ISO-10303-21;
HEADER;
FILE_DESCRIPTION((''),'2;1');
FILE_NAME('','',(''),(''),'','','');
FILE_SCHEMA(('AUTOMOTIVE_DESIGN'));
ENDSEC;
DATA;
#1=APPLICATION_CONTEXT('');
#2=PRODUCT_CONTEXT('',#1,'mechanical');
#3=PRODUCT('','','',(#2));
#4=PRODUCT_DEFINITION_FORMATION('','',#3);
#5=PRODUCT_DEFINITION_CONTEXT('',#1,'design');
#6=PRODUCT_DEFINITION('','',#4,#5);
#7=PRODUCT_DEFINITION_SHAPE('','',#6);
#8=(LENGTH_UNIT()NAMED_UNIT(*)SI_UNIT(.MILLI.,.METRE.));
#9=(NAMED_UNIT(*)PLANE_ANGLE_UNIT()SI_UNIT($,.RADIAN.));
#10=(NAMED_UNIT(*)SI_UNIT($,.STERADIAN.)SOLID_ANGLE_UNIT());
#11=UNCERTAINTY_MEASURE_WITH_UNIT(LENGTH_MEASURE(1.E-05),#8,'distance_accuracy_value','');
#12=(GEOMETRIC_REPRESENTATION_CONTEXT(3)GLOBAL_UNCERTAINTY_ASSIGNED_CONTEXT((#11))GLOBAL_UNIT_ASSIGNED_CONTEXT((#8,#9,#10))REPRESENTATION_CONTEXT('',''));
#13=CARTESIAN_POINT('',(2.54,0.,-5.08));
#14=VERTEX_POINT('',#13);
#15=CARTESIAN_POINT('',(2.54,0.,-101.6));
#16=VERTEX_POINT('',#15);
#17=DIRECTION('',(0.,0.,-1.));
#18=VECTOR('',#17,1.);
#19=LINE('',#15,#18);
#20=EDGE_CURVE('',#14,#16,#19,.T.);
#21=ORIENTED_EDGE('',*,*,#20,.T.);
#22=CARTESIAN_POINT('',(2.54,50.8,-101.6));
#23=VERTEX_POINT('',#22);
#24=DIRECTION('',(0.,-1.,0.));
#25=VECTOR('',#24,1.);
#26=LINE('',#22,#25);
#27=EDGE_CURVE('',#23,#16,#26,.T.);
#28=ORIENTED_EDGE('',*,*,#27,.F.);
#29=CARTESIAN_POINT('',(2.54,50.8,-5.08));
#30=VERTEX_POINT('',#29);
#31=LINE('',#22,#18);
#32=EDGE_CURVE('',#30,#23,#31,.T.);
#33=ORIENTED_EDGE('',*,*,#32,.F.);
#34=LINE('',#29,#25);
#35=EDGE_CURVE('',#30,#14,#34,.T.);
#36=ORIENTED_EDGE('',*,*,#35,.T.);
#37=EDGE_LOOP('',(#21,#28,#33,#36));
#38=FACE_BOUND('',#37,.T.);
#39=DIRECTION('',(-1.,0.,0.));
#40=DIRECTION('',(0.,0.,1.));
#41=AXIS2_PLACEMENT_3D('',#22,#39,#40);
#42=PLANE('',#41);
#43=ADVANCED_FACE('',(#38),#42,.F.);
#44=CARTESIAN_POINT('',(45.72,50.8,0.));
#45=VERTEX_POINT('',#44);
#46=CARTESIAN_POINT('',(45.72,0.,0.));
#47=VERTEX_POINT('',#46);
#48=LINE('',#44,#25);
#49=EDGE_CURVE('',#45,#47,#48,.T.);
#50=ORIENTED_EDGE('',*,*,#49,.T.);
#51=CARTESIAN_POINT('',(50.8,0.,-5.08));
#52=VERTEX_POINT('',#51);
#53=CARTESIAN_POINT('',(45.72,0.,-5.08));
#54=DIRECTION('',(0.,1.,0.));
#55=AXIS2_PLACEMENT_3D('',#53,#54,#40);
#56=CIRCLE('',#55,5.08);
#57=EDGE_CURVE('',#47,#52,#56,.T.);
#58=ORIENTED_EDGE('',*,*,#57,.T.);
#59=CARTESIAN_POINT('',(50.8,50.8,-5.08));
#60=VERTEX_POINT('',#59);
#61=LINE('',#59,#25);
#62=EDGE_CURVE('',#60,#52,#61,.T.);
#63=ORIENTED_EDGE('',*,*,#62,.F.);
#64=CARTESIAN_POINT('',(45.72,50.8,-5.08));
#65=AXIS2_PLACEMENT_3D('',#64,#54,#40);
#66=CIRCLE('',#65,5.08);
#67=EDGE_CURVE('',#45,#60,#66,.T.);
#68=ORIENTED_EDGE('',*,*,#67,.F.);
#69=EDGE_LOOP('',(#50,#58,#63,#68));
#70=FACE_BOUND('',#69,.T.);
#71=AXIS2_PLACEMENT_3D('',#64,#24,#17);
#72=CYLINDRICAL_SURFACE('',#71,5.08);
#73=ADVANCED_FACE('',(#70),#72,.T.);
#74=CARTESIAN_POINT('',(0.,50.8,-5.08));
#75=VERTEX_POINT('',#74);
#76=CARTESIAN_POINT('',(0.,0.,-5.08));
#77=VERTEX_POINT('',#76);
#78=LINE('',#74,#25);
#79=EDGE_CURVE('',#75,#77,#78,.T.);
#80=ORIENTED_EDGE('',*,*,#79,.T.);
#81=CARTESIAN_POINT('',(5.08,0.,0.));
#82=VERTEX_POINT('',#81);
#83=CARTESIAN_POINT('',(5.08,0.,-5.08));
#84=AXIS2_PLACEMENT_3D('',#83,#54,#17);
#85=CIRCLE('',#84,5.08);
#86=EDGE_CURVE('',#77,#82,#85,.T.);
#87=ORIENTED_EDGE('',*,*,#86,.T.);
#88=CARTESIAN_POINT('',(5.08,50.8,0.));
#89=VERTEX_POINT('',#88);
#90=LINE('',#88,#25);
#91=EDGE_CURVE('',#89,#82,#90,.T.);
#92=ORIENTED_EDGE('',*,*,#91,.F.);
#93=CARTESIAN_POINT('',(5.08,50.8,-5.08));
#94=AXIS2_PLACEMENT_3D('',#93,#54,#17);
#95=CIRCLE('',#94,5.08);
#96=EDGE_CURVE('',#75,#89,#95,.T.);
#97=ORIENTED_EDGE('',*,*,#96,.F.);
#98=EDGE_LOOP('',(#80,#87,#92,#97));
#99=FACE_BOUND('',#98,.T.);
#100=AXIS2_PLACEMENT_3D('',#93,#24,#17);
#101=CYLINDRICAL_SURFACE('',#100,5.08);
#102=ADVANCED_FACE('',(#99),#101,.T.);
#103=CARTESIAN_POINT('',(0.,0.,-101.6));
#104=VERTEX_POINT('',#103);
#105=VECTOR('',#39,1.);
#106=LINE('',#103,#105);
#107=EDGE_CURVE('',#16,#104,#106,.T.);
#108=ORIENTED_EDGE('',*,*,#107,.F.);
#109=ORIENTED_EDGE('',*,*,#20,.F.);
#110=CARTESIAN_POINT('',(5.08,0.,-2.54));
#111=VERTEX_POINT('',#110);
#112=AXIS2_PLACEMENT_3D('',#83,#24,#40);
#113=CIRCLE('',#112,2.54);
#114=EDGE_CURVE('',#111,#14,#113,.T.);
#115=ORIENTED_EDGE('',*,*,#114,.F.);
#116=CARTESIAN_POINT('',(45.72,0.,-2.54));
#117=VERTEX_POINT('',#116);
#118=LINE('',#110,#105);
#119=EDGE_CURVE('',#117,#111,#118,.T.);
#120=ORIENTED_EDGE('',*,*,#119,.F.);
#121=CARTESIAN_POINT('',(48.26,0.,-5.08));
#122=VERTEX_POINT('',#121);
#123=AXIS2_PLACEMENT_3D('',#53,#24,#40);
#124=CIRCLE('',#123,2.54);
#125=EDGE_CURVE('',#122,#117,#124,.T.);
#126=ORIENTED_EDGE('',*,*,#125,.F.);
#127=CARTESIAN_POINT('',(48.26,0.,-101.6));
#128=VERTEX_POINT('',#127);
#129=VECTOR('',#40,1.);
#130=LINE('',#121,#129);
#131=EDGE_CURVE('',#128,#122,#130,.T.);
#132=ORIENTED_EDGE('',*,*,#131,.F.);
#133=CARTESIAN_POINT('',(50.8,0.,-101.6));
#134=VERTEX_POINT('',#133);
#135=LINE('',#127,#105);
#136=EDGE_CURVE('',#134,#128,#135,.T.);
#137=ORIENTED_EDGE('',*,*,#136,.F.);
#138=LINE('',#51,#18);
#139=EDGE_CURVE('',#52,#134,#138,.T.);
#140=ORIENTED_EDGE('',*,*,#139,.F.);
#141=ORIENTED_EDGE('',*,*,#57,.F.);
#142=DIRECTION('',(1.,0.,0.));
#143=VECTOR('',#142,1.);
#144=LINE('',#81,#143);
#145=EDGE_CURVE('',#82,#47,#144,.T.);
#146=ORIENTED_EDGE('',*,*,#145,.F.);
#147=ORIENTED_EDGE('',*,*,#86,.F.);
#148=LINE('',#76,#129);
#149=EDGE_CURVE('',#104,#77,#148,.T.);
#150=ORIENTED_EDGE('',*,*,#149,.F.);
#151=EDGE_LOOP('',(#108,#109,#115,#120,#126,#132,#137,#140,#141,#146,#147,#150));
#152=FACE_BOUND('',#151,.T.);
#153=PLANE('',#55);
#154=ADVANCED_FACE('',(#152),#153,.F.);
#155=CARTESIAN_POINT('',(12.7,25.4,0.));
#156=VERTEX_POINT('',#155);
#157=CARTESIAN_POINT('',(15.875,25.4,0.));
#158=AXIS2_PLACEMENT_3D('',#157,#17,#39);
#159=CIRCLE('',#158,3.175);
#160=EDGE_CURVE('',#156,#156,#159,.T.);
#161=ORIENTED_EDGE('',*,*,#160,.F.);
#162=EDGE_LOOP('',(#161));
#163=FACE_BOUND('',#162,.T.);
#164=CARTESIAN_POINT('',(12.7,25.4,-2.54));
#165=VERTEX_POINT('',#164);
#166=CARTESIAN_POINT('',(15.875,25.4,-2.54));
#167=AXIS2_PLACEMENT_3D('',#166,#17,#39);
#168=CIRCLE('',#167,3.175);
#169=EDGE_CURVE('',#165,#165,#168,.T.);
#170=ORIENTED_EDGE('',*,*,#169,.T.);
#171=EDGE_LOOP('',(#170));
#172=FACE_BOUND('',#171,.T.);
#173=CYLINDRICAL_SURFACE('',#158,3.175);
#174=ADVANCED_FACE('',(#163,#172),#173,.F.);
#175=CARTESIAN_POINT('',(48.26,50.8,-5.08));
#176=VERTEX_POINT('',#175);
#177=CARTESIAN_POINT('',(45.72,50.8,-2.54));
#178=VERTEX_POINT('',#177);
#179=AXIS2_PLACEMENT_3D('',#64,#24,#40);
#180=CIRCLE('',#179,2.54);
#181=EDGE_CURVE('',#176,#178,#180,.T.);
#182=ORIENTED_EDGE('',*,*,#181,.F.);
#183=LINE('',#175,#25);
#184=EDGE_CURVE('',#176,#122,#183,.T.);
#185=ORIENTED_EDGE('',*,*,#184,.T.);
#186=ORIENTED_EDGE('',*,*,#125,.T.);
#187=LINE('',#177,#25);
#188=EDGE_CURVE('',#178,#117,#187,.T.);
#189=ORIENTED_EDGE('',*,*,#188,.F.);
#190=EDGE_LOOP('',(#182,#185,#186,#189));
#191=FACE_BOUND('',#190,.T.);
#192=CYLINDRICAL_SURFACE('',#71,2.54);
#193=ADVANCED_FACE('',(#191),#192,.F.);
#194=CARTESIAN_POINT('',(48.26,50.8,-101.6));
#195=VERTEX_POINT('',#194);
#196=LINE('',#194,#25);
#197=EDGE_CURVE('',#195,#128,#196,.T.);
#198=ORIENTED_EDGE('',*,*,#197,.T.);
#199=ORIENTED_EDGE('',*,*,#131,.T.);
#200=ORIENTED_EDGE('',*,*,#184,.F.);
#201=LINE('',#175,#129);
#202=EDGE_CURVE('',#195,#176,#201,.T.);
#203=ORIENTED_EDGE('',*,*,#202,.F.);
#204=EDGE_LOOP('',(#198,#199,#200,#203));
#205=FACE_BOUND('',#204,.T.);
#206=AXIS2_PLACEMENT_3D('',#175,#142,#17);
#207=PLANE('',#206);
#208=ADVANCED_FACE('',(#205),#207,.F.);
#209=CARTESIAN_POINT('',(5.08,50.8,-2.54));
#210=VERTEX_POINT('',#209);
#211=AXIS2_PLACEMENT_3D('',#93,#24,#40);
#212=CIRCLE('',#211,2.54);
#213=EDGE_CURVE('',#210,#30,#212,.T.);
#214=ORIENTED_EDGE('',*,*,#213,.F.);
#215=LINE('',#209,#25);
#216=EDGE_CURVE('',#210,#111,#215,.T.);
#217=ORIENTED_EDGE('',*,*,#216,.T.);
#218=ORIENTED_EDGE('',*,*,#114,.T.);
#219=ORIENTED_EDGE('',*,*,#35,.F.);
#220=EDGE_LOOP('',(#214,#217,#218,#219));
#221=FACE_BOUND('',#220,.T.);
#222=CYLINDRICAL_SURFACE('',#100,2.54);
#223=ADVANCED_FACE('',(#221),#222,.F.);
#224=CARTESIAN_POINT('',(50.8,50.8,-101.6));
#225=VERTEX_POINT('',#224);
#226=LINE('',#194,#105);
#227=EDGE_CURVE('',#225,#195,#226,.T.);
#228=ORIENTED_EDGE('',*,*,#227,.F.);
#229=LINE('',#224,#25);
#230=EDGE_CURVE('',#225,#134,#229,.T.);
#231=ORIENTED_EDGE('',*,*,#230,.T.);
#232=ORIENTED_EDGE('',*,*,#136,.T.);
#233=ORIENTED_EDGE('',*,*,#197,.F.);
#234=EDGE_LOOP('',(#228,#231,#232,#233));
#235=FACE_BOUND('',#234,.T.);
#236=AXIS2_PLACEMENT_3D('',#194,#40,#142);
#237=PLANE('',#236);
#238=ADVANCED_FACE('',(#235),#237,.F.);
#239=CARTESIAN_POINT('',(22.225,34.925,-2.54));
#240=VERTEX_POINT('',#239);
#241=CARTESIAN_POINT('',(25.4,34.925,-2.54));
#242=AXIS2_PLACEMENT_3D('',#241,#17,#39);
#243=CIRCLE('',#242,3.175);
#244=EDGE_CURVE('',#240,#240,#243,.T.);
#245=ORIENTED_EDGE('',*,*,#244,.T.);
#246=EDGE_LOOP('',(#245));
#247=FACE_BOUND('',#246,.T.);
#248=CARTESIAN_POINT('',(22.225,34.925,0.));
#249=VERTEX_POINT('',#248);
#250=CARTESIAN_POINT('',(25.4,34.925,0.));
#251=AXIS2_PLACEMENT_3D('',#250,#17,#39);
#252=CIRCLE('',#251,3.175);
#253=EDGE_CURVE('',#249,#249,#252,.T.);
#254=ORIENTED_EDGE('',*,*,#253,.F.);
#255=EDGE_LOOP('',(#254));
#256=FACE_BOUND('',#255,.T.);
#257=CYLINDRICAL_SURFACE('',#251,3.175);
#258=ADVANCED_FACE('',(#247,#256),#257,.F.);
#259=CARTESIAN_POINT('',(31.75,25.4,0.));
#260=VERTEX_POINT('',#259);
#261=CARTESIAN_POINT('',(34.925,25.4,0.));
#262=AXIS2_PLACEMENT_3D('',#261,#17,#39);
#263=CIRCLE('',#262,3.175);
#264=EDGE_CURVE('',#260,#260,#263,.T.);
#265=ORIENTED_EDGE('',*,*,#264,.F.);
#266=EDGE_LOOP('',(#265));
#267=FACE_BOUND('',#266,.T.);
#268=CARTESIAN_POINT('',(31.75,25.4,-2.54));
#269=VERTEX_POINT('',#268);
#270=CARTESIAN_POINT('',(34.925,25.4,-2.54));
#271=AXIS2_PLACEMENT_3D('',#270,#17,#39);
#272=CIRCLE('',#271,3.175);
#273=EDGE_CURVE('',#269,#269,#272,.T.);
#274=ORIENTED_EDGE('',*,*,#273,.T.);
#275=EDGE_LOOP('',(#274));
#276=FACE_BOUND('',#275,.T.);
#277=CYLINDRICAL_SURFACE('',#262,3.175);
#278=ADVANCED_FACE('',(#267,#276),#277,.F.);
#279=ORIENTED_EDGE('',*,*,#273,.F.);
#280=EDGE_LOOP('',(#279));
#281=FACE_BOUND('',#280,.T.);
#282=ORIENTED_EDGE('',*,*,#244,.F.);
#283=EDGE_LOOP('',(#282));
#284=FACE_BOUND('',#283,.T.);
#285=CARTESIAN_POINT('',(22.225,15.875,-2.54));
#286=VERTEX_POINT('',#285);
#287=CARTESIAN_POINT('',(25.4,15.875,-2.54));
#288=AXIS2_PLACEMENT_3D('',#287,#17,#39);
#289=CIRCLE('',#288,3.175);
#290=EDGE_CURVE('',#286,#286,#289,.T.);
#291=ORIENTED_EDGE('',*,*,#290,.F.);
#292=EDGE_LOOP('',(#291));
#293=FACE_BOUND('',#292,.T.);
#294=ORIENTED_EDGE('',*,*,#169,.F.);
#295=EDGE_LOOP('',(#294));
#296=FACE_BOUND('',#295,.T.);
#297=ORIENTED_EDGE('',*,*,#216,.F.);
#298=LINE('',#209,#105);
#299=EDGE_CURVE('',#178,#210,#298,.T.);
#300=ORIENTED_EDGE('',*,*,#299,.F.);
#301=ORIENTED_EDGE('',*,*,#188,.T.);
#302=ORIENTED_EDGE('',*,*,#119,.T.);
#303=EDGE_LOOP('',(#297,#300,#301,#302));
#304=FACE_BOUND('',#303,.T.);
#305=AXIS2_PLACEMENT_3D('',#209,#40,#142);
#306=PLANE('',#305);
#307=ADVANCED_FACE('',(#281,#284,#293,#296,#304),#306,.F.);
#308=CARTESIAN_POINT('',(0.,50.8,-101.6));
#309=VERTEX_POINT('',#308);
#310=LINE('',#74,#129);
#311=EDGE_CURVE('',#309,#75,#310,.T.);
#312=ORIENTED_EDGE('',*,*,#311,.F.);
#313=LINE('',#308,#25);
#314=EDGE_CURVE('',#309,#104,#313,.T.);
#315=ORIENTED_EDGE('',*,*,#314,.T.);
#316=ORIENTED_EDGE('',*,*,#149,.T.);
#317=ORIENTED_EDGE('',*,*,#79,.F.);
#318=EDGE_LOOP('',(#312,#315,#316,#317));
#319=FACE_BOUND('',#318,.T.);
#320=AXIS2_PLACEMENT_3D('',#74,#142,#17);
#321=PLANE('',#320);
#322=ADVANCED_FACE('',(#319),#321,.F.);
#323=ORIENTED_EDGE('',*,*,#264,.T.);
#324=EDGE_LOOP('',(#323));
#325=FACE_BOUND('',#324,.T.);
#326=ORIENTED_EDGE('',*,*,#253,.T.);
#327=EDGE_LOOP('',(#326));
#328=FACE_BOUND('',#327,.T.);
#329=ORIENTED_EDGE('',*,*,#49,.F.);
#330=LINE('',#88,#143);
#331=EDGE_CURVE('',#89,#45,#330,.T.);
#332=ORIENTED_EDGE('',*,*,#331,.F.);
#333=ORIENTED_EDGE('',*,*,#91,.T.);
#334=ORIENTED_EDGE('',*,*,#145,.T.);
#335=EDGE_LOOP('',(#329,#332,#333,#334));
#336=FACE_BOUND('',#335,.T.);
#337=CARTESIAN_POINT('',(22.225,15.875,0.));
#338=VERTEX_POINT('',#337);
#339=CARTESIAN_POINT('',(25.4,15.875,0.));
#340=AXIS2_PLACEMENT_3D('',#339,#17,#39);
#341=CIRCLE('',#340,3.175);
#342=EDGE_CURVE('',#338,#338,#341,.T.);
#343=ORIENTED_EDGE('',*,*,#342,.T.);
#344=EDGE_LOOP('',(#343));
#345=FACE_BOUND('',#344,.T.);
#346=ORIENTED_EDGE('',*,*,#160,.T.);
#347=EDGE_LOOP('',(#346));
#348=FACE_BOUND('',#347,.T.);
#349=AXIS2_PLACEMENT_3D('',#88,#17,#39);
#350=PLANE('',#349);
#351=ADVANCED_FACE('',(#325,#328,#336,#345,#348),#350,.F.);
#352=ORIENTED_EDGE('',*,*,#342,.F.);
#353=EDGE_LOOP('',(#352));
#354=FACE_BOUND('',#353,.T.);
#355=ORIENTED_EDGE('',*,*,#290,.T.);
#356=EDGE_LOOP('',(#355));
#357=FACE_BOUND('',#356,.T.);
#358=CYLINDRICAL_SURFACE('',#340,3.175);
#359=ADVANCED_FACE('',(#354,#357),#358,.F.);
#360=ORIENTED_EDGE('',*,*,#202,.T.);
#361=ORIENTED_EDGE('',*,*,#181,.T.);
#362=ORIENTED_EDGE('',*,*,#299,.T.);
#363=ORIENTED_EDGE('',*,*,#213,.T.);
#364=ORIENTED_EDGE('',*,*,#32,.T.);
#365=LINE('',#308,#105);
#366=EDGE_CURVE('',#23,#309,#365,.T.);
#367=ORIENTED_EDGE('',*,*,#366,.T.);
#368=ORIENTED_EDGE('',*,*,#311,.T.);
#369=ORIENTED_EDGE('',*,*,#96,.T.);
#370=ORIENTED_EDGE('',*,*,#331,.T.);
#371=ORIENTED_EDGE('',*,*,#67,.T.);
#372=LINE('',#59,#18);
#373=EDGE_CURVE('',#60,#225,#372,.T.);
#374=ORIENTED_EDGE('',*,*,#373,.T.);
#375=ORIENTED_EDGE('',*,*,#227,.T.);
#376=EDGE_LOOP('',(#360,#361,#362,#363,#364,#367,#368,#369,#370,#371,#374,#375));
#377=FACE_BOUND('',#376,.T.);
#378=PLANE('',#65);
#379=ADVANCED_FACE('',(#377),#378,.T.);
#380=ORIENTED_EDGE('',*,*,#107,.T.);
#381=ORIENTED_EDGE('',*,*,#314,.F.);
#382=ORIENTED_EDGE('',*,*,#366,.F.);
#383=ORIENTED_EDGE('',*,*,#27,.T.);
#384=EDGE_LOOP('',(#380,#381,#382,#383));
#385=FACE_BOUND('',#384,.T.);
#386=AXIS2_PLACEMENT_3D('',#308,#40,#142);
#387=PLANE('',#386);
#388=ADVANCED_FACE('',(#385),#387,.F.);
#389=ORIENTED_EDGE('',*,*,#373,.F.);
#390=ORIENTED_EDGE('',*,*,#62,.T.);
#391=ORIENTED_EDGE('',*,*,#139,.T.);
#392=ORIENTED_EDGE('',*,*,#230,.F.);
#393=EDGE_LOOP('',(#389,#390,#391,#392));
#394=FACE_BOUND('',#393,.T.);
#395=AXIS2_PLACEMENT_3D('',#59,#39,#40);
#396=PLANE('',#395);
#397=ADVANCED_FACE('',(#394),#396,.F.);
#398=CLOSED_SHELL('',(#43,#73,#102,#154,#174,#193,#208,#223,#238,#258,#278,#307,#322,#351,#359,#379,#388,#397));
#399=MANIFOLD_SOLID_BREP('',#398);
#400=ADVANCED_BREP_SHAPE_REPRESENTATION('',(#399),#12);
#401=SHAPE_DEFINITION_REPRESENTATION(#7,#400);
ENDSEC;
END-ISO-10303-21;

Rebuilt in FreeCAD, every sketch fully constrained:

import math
import FreeCAD as App
import Part
import Sketcher
Q = App.Units.Quantity

doc = App.newDocument("Part")
body = doc.addObject("PartDesign::Body", "Body")

# Sketch on XZ plane
sketch1 = body.newObject("Sketcher::SketchObject", "Sketch")
sketch1.AttachmentSupport = (doc.getObject("XZ_Plane"), [""])
sketch1.MapMode = "FlatFace"
sketch1.addGeometry(Part.LineSegment(App.Vector(2.5, -101.6, 0), App.Vector(0, -101.6, 0)), False)
sketch1.addGeometry(Part.LineSegment(App.Vector(0, -101.6, 0), App.Vector(0, -5.1, 0)), False)
sketch1.addGeometry(Part.ArcOfCircle(Part.Circle(App.Vector(5.1, -5.1, 0), App.Vector(0, 0, 1), 5.1), math.radians(90), math.radians(180)), False)
sketch1.addGeometry(Part.LineSegment(App.Vector(5.1, 0, 0), App.Vector(45.7, 0, 0)), False)
sketch1.addGeometry(Part.ArcOfCircle(Part.Circle(App.Vector(45.7, -5.1, 0), App.Vector(0, 0, 1), 5.1), math.radians(0), math.radians(90)), False)
sketch1.addGeometry(Part.LineSegment(App.Vector(50.8, -5.1, 0), App.Vector(50.8, -101.6, 0)), False)
sketch1.addGeometry(Part.LineSegment(App.Vector(50.8, -101.6, 0), App.Vector(48.3, -101.6, 0)), False)
sketch1.addGeometry(Part.LineSegment(App.Vector(48.3, -101.6, 0), App.Vector(48.3, -5.1, 0)), False)
sketch1.addGeometry(Part.ArcOfCircle(Part.Circle(App.Vector(45.7, -5.1, 0), App.Vector(0, 0, 1), 2.5), math.radians(0), math.radians(90)), False)
sketch1.addGeometry(Part.LineSegment(App.Vector(45.7, -2.5, 0), App.Vector(5.1, -2.5, 0)), False)
sketch1.addGeometry(Part.ArcOfCircle(Part.Circle(App.Vector(5.1, -5.1, 0), App.Vector(0, 0, 1), 2.5), math.radians(90), math.radians(180)), False)
sketch1.addGeometry(Part.LineSegment(App.Vector(2.5, -5.1, 0), App.Vector(2.5, -101.6, 0)), False)
sketch1.addConstraint(Sketcher.Constraint("Coincident", 0, 2, 1, 1))
sketch1.addConstraint(Sketcher.Constraint("Tangent", 1, 2, 2, 2))
sketch1.addConstraint(Sketcher.Constraint("Tangent", 2, 1, 3, 1))
sketch1.addConstraint(Sketcher.Constraint("Tangent", 3, 2, 4, 2))
sketch1.addConstraint(Sketcher.Constraint("Tangent", 4, 1, 5, 1))
sketch1.addConstraint(Sketcher.Constraint("Coincident", 5, 2, 6, 1))
sketch1.addConstraint(Sketcher.Constraint("Coincident", 6, 2, 7, 1))
sketch1.addConstraint(Sketcher.Constraint("Tangent", 7, 2, 8, 1))
sketch1.addConstraint(Sketcher.Constraint("Tangent", 8, 2, 9, 1))
sketch1.addConstraint(Sketcher.Constraint("Tangent", 9, 2, 10, 1))
sketch1.addConstraint(Sketcher.Constraint("Tangent", 10, 2, 11, 1))
sketch1.addConstraint(Sketcher.Constraint("Coincident", 11, 2, 0, 1))
sketch1.addConstraint(Sketcher.Constraint("Horizontal", 0))
sketch1.addConstraint(Sketcher.Constraint("Vertical", 1))
sketch1.addConstraint(Sketcher.Constraint("Horizontal", 3))
sketch1.addConstraint(Sketcher.Constraint("Vertical", 5))
sketch1.addConstraint(Sketcher.Constraint("Horizontal", 6))
sketch1.addConstraint(Sketcher.Constraint("Vertical", 7))
sketch1.addConstraint(Sketcher.Constraint("Horizontal", 9))
sketch1.addConstraint(Sketcher.Constraint("Vertical", 11))
sketch1.addConstraint(Sketcher.Constraint("Coincident", 8, 3, 4, 3))
sketch1.addConstraint(Sketcher.Constraint("Coincident", 10, 3, 2, 3))
sketch1.addConstraint(Sketcher.Constraint("Equal", 2, 4))
sketch1.addConstraint(Sketcher.Constraint("PointOnObject", 0, 2, -2))
sketch1.addConstraint(Sketcher.Constraint("PointOnObject", 2, 1, -1))
sketch1.addConstraint(Sketcher.Constraint("Horizontal", 0, 2, 5, 2))
sketch1.addConstraint(Sketcher.Constraint("Radius", 2, Q("0.2 in")))
sketch1.addConstraint(Sketcher.Constraint("Radius", 8, Q("0.1 in")))
sketch1.addConstraint(Sketcher.Constraint("DistanceX", 3, 1, 3, 2, Q("1.6 in")))
sketch1.addConstraint(Sketcher.Constraint("DistanceY", 1, 1, 1, 2, Q("3.8 in")))
pad1 = body.newObject("PartDesign::Pad", "Pad")
pad1.Profile = sketch1
pad1.Length = Q("2 in")
pad1.Reversed = True

# Sketch on XY plane
sketch2 = body.newObject("Sketcher::SketchObject", "Sketch001")
sketch2.AttachmentSupport = (doc.getObject("XY_Plane"), [""])
sketch2.MapMode = "FlatFace"
sketch2.AttachmentOffset = App.Placement(App.Vector(0, 0, -0.1 * 25.4), App.Rotation())
sketch2.addGeometry(Part.Circle(App.Vector(34.9, 25.4, 0), App.Vector(0, 0, 1), 3.2), False)
sketch2.addGeometry(Part.Circle(App.Vector(25.4, 34.9, 0), App.Vector(0, 0, 1), 3.2), False)
sketch2.addGeometry(Part.Circle(App.Vector(15.9, 25.4, 0), App.Vector(0, 0, 1), 3.2), False)
sketch2.addGeometry(Part.Circle(App.Vector(25.4, 15.9, 0), App.Vector(0, 0, 1), 3.2), False)
sketch2.addConstraint(Sketcher.Constraint("Equal", 0, 1))
sketch2.addConstraint(Sketcher.Constraint("Equal", 1, 2))
sketch2.addConstraint(Sketcher.Constraint("Equal", 2, 3))
sketch2.addConstraint(Sketcher.Constraint("Horizontal", 0, 3, 2, 3))
sketch2.addConstraint(Sketcher.Constraint("Vertical", 1, 3, 3, 3))
sketch2.addConstraint(Sketcher.Constraint("Diameter", 0, Q("0.25 in")))
sketch2.addConstraint(Sketcher.Constraint("DistanceY", -1, 1, 0, 3, Q("1 in")))
sketch2.addConstraint(Sketcher.Constraint("DistanceX", -1, 1, 1, 3, Q("1 in")))
sketch2.addConstraint(Sketcher.Constraint("DistanceX", 2, 3, 0, 3, Q("0.75 in")))
sketch2.addConstraint(Sketcher.Constraint("DistanceY", 3, 3, 1, 3, Q("0.75 in")))
sketch2.addConstraint(Sketcher.Constraint("DistanceX", -1, 1, 0, 3, Q("1.375 in")))
sketch2.addConstraint(Sketcher.Constraint("DistanceY", -1, 1, 1, 3, Q("1.375 in")))
pocket1 = body.newObject("PartDesign::Pocket", "Pocket")
pocket1.Profile = sketch2
pocket1.Type = "ThroughAll"
pocket1.Reversed = True

doc.recompute()
